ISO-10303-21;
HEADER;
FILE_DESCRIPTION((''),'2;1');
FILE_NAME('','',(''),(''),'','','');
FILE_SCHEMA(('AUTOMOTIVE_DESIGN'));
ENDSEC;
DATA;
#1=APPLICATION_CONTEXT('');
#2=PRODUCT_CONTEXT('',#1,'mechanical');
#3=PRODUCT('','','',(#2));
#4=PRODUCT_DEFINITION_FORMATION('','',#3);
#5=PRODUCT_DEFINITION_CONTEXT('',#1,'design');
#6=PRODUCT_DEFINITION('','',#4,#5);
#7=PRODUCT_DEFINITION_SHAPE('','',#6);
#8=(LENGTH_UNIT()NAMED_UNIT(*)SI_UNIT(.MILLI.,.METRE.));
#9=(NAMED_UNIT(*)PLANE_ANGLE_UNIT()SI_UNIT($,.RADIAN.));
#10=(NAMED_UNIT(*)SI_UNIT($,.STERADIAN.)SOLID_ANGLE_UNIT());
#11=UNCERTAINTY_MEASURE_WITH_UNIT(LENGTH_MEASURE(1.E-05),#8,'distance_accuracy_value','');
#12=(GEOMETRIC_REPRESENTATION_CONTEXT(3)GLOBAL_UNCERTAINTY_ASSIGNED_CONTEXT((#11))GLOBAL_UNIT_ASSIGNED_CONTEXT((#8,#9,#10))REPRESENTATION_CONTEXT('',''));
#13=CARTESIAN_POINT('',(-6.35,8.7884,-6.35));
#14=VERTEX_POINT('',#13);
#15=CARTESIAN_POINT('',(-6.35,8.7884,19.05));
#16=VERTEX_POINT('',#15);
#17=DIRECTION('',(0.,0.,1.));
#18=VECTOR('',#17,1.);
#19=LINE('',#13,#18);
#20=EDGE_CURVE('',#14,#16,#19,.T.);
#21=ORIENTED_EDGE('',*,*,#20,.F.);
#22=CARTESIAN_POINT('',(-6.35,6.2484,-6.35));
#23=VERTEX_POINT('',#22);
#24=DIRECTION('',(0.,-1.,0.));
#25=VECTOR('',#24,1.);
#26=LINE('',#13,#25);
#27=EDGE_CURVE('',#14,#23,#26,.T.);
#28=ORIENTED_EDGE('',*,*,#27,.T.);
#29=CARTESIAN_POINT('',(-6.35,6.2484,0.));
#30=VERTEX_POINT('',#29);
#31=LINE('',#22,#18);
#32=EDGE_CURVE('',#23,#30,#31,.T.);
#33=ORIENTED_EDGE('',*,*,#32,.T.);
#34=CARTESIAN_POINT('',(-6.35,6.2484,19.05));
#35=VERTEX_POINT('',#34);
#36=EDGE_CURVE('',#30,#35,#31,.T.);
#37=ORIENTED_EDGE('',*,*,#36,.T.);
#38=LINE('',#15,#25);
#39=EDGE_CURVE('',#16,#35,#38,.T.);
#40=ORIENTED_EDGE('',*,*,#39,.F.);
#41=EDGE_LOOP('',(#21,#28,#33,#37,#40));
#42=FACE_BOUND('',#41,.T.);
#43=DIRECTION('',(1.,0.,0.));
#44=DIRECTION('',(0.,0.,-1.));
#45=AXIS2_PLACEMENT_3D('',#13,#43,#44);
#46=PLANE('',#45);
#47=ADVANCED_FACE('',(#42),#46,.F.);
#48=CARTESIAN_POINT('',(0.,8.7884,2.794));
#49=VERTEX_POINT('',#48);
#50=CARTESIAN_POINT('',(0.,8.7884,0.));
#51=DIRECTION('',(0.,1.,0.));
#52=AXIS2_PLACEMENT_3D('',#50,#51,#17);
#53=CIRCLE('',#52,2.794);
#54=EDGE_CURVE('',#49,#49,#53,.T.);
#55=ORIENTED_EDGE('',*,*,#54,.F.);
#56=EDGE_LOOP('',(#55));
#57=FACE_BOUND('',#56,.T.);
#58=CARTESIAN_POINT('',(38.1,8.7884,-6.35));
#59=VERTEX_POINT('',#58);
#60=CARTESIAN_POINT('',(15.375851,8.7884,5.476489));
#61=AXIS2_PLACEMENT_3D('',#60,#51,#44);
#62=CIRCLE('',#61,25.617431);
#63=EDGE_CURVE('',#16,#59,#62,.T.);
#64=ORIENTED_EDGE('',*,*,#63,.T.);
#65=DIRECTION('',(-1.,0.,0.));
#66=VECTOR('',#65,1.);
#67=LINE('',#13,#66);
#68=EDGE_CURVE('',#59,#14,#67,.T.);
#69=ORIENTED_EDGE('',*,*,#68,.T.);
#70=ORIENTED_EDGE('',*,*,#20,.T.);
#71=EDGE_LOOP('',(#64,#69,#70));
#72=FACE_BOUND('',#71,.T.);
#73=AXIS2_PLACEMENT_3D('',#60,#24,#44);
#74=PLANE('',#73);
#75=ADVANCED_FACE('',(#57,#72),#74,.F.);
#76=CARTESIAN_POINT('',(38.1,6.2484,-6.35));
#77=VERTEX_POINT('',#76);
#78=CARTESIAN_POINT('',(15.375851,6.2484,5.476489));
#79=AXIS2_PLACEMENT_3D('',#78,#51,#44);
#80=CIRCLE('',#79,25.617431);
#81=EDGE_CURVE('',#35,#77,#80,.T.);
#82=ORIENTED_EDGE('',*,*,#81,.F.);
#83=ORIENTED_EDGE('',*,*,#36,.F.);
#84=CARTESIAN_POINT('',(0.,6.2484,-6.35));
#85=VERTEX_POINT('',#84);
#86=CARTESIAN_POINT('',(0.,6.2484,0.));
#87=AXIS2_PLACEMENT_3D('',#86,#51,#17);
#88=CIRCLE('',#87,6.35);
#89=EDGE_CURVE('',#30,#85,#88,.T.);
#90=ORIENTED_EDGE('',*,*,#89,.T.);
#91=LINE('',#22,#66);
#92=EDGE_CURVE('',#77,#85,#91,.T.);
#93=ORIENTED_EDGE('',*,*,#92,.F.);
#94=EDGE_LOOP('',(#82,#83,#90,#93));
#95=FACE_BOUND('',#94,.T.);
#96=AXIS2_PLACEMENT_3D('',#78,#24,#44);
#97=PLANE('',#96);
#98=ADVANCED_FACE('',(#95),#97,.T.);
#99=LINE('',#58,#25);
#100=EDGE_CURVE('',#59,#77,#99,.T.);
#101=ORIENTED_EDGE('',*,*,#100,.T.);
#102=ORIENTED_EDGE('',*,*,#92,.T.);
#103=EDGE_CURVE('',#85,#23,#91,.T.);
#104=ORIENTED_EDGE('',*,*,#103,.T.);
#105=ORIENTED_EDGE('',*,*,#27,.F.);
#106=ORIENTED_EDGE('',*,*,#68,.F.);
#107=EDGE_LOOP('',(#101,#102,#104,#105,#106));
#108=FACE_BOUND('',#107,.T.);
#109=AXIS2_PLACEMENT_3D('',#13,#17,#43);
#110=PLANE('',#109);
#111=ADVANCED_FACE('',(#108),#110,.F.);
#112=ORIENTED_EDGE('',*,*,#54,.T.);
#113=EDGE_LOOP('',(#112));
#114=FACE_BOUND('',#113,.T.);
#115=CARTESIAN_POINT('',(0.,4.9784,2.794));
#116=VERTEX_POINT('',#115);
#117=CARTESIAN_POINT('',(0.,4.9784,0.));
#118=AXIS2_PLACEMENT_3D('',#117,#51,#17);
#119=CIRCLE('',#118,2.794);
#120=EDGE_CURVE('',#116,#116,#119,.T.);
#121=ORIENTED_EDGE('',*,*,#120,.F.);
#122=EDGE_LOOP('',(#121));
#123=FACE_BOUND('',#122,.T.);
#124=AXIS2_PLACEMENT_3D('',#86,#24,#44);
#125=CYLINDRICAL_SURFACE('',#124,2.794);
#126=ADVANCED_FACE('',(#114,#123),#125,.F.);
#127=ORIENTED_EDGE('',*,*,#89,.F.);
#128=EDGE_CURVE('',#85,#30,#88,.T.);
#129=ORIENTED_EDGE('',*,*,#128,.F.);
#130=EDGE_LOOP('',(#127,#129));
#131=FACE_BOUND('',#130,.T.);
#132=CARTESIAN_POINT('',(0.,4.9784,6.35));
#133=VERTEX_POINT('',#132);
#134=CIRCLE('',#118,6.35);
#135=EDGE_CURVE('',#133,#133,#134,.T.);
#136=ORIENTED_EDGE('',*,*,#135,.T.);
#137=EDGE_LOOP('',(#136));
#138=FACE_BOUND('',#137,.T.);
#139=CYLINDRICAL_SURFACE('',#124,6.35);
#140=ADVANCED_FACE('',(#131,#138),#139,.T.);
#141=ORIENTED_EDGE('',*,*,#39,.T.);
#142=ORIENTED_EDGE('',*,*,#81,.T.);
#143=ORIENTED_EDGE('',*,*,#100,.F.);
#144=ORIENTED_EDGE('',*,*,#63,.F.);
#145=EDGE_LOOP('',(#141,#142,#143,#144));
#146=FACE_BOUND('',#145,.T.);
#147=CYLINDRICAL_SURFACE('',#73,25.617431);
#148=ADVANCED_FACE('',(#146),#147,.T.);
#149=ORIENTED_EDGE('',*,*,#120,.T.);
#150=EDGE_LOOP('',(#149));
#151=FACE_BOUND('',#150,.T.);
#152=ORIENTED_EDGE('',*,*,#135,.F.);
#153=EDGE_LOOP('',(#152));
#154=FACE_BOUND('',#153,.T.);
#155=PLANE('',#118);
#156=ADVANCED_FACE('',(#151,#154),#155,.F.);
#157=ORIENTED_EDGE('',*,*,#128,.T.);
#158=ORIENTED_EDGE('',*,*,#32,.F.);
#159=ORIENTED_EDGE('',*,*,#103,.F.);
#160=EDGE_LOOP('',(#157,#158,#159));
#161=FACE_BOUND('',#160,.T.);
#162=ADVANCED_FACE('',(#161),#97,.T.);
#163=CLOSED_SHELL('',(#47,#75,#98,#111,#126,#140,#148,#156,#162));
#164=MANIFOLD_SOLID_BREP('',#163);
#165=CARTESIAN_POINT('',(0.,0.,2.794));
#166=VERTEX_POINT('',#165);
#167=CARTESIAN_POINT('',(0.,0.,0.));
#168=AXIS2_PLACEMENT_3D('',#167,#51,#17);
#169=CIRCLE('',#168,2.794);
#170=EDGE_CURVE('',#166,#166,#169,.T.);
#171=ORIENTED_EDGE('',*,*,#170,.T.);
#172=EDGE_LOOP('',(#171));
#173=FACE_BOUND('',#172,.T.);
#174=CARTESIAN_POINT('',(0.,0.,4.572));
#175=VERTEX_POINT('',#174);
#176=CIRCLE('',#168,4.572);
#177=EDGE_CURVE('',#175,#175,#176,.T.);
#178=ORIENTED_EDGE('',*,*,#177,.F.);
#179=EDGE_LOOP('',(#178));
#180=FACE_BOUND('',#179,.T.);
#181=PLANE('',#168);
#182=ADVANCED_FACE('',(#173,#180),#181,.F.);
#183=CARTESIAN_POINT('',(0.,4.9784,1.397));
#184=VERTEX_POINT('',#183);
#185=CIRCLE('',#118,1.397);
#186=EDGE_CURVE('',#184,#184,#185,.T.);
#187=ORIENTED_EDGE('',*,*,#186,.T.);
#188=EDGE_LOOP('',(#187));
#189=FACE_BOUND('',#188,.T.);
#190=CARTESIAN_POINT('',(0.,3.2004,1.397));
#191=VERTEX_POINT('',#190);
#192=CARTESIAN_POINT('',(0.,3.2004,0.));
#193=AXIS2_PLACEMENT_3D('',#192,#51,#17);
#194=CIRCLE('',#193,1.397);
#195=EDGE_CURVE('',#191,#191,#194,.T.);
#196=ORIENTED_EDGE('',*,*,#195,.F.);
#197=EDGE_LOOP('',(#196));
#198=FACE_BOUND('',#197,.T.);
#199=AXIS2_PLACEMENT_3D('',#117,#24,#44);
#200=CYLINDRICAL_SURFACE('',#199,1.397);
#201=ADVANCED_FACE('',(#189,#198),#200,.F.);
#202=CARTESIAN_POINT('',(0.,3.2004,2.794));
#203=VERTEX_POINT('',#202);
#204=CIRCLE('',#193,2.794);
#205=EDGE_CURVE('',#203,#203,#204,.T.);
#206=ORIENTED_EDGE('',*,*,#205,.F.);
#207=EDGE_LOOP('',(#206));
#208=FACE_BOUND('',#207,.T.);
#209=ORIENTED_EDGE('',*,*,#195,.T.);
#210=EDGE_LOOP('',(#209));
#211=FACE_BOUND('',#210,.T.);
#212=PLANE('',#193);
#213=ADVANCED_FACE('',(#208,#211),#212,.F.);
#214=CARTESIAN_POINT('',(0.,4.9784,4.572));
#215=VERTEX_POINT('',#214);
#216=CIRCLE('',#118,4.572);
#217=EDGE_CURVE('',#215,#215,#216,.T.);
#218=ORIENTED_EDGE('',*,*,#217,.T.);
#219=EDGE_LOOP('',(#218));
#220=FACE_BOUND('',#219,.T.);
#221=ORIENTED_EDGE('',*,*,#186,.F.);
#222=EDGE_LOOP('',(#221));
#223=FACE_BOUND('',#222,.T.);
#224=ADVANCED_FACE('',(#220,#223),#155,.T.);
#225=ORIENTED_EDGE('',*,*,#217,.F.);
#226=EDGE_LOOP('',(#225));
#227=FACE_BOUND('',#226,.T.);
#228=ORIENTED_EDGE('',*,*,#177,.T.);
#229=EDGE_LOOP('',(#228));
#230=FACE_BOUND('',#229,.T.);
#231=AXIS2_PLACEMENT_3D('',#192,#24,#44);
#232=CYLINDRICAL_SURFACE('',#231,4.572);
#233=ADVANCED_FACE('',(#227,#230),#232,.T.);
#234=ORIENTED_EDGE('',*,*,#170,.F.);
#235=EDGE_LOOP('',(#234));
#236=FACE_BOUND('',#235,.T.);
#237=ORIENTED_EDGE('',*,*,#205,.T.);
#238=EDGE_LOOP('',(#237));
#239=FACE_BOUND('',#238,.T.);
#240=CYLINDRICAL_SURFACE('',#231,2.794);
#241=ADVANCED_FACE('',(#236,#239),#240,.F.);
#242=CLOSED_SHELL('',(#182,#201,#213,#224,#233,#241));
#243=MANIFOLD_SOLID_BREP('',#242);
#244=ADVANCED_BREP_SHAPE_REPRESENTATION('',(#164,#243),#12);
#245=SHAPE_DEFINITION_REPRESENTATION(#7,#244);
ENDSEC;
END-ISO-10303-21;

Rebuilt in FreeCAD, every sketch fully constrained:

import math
import FreeCAD as App
import Part
import Sketcher
from FreeCAD import Vector
Q = App.Units.Quantity

doc = App.newDocument("Part")
params = doc.addObject("Spreadsheet::Sheet", "Params")
for row, (alias, value) in enumerate([
    ("sketch1_diameter", "0.36 in"),
    ("sketch1_diameter2", "0.22 in"),
    ("pad1_length", "0.126 in"),
    ("sketch2_diameter", "0.36 in"),
    ("sketch2_diameter2", "0.11 in"),
    ("pad2_length", "0.07 in"),
    ("sketch3_diameter", "0.5 in"),
    ("sketch3_diameter2", "0.22 in"),
    ("pad3_length", "0.05 in"),
    ("sketch4_diameter", "0.22 in"),
    ("sketch4_height", "1 in"),
    ("sketch4_width", "1.75 in"),
    ("pad4_length", "0.1 in"),
], start=1):
    params.set(f"A{row}", alias)
    params.set(f"B{row}", "=" + value)
    params.setAlias(f"B{row}", alias)

body = doc.addObject("PartDesign::Body", "Body")

sketch1 = doc.addObject("Sketcher::SketchObject", "Sketch")
body.addObject(sketch1)
sketch1.AttachmentSupport = (doc.XZ_Plane, [""])
sketch1.MapMode = "FlatFace"
sketch1.addGeometry([
    Part.Circle(Vector(0, 0, 0), Vector(0, 0, 1), 4.6),
    Part.Circle(Vector(0, 0, 0), Vector(0, 0, 1), 2.8),
], False)
sketch1.addConstraint([
    Sketcher.Constraint("Coincident", 0, 3, -1, 1),
    Sketcher.Constraint("Coincident", 1, 3, -1, 1),
    Sketcher.Constraint("Diameter", 0, Q("0.36 in")),
    Sketcher.Constraint("Diameter", 1, Q("0.22 in")),
])
sketch1.setExpression("Constraints[2]", "Params.sketch1_diameter")
sketch1.setExpression("Constraints[3]", "Params.sketch1_diameter2")
pad1 = doc.addObject("PartDesign::Pad", "Pad")
body.addObject(pad1)
pad1.Profile = sketch1
pad1.setExpression("Length", "Params.pad1_length")
pad1.Reversed = True

sketch2 = doc.addObject("Sketcher::SketchObject", "Sketch001")
body.addObject(sketch2)
sketch2.AttachmentSupport = (doc.XZ_Plane, [""])
sketch2.MapMode = "FlatFace"
sketch2.AttachmentOffset = App.Placement(Vector(0, 0, -0.126 * 25.4), App.Rotation())
sketch2.addGeometry([
    Part.Circle(Vector(0, 0, 0), Vector(0, 0, 1), 4.6),
    Part.Circle(Vector(0, 0, 0), Vector(0, 0, 1), 1.4),
], False)
sketch2.addConstraint([
    Sketcher.Constraint("Coincident", 0, 3, -1, 1),
    Sketcher.Constraint("Coincident", 1, 3, -1, 1),
    Sketcher.Constraint("Diameter", 0, Q("0.36 in")),
    Sketcher.Constraint("Diameter", 1, Q("0.11 in")),
])
sketch2.setExpression("Constraints[2]", "Params.sketch2_diameter")
sketch2.setExpression("Constraints[3]", "Params.sketch2_diameter2")
pad2 = doc.addObject("PartDesign::Pad", "Pad001")
body.addObject(pad2)
pad2.Profile = sketch2
pad2.setExpression("Length", "Params.pad2_length")
pad2.Reversed = True
body2 = doc.addObject("PartDesign::Body", "Body001")

sketch3 = doc.addObject("Sketcher::SketchObject", "Sketch002")
body2.addObject(sketch3)
sketch3.AttachmentSupport = (doc.getObject("XZ_Plane001"), [""])
sketch3.MapMode = "FlatFace"
sketch3.AttachmentOffset = App.Placement(Vector(0, 0, -0.196 * 25.4), App.Rotation())
sketch3.addGeometry([
    Part.Circle(Vector(0, 0, 0), Vector(0, 0, 1), 6.3),
    Part.Circle(Vector(0, 0, 0), Vector(0, 0, 1), 2.8),
], False)
sketch3.addConstraint([
    Sketcher.Constraint("Coincident", 0, 3, -1, 1),
    Sketcher.Constraint("Coincident", 1, 3, -1, 1),
    Sketcher.Constraint("Diameter", 0, Q("0.5 in")),
    Sketcher.Constraint("Diameter", 1, Q("0.22 in")),
])
sketch3.setExpression("Constraints[2]", "Params.sketch3_diameter")
sketch3.setExpression("Constraints[3]", "Params.sketch3_diameter2")
pad3 = doc.addObject("PartDesign::Pad", "Pad002")
body2.addObject(pad3)
pad3.Profile = sketch3
pad3.setExpression("Length", "Params.pad3_length")
pad3.Reversed = True

sketch4 = doc.addObject("Sketcher::SketchObject", "Sketch003")
body2.addObject(sketch4)
sketch4.AttachmentSupport = (doc.getObject("XZ_Plane001"), [""])
sketch4.MapMode = "FlatFace"
sketch4.AttachmentOffset = App.Placement(Vector(0, 0, -0.246 * 25.4), App.Rotation())
sketch4.addGeometry([
    Part.LineSegment(Vector(38.1, -6.3, 0), Vector(-6.3, -6.3, 0)),
    Part.LineSegment(Vector(-6.3, -6.3, 0), Vector(-6.3, 19.1, 0)),
    Part.ArcOfCircle(Part.Circle(Vector(15.4, 5.5, 0), Vector(0, 0, 1), 25.6), math.radians(-27), math.radians(148)),
    Part.Circle(Vector(0, 0, 0), Vector(0, 0, 1), 2.8),
], False)
sketch4.addConstraint([
    Sketcher.Constraint("Coincident", 0, 2, 1, 1),
    Sketcher.Constraint("Coincident", 1, 2, 2, 2),
    Sketcher.Constraint("Coincident", 2, 1, 0, 1),
    Sketcher.Constraint("Horizontal", 0),
    Sketcher.Constraint("Vertical", 1),
    Sketcher.Constraint("Coincident", 3, 3, -1, 1),
    Sketcher.Constraint("Diameter", 3, Q("0.22 in")),
    Sketcher.Constraint("DistanceY", 1, 1, 1, 2, Q("1 in")),
    Sketcher.Constraint("DistanceX", 0, 2, 0, 1, Q("1.75 in")),
    Sketcher.Constraint("DistanceX", -1, 1, 2, 1, Q("1.5 in")),
    Sketcher.Constraint("DistanceY", 0, 2, -1, 1, Q("0.25 in")),
    Sketcher.Constraint("Radius", 2, Q("25.617431 mm")),
])
sketch4.setExpression("Constraints[6]", "Params.sketch4_diameter")
sketch4.setExpression("Constraints[7]", "Params.sketch4_height")
sketch4.setExpression("Constraints[8]", "Params.sketch4_width")
pad4 = doc.addObject("PartDesign::Pad", "Pad003")
body2.addObject(pad4)
pad4.Profile = sketch4
pad4.setExpression("Length", "Params.pad4_length")
pad4.Reversed = True

doc.recompute()
